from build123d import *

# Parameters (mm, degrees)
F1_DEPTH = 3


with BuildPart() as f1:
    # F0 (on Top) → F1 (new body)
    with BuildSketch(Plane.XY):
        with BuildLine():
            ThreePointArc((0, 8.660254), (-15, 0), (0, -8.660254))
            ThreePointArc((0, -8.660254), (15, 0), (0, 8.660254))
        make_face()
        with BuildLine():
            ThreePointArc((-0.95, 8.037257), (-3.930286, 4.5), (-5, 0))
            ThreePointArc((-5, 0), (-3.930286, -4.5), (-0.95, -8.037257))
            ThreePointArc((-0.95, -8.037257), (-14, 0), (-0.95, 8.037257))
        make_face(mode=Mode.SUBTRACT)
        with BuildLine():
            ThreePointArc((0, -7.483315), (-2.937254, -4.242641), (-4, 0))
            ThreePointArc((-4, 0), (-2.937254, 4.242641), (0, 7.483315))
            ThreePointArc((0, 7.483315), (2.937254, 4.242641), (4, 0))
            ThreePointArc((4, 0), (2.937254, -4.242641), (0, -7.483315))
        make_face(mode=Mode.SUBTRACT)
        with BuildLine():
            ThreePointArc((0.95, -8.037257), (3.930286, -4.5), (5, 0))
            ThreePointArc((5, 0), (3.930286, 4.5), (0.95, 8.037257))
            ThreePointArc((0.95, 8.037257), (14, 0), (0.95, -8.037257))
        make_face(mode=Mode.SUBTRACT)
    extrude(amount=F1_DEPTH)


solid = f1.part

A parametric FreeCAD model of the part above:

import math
import FreeCAD as App
import Part
import Sketcher

doc = App.newDocument("Part")
body = doc.addObject("PartDesign::Body", "Body")

# Sketch on XY plane
sketch1 = body.newObject("Sketcher::SketchObject", "Sketch")
sketch1.AttachmentSupport = (doc.getObject("XY_Plane"), [""])
sketch1.MapMode = "FlatFace"
sketch1.addGeometry([
    Part.ArcOfCircle(Part.Circle(App.Vector(-5, 0, 0), App.Vector(0, 0, 1), 10), math.radians(60), math.radians(300)),  # 0
    Part.ArcOfCircle(Part.Circle(App.Vector(5, 0, 0), App.Vector(0, 0, 1), 10), math.radians(-120), math.radians(120)),  # 1
    Part.ArcOfCircle(Part.Circle(App.Vector(-5, 0, 0), App.Vector(0, 0, 1), 9), math.radians(63.256316), math.radians(296.743684)),  # 2
    Part.ArcOfCircle(Part.Circle(App.Vector(4.999997, 0.000002, 0), App.Vector(0, 0, 1), 9.999997), math.radians(126.512622), math.radians(180.00001)),  # 3
    Part.ArcOfCircle(Part.Circle(App.Vector(4.999997, -0.000002, 0), App.Vector(0, 0, 1), 9.999997), math.radians(179.99999), math.radians(233.487378)),  # 4
    Part.ArcOfCircle(Part.Circle(App.Vector(-4.999999, -0.000001, 0), App.Vector(0, 0, 1), 8.999999), math.radians(-56.251014), math.radians(0.000004)),  # 5
    Part.ArcOfCircle(Part.Circle(App.Vector(4.999999, -0.000001, 0), App.Vector(0, 0, 1), 8.999999), math.radians(179.999996), math.radians(236.251014)),  # 6
    Part.ArcOfCircle(Part.Circle(App.Vector(4.999999, 0.000001, 0), App.Vector(0, 0, 1), 8.999999), math.radians(123.748986), math.radians(180.000004)),  # 7
    Part.ArcOfCircle(Part.Circle(App.Vector(-4.999999, 0.000001, 0), App.Vector(0, 0, 1), 8.999999), math.radians(-0.000004), math.radians(56.251014)),  # 8
    Part.ArcOfCircle(Part.Circle(App.Vector(5, 0, 0), App.Vector(0, 0, 1), 9), math.radians(-116.743684), math.radians(116.743684)),  # 9
    Part.ArcOfCircle(Part.Circle(App.Vector(-4.999997, -0.000002, 0), App.Vector(0, 0, 1), 9.999997), math.radians(-53.487378), math.radians(0.00001)),  # 10
    Part.ArcOfCircle(Part.Circle(App.Vector(-4.999997, 0.000002, 0), App.Vector(0, 0, 1), 9.999997), math.radians(-0.00001), math.radians(53.487378)),  # 11
], False)
sketch1.addConstraint([
    Sketcher.Constraint("Coincident", 0, 1, 1, 2),
    Sketcher.Constraint("Coincident", 1, 1, 0, 2),
    Sketcher.Constraint("Coincident", 2, 1, 3, 1),
    Sketcher.Constraint("Tangent", 3, 2, 4, 1),
    Sketcher.Constraint("Coincident", 4, 2, 2, 2),
    Sketcher.Constraint("Coincident", 5, 1, 6, 2),
    Sketcher.Constraint("Tangent", 6, 1, 7, 2),
    Sketcher.Constraint("Coincident", 7, 1, 8, 2),
    Sketcher.Constraint("Tangent", 8, 1, 5, 2),
    Sketcher.Constraint("Coincident", 9, 1, 10, 1),
    Sketcher.Constraint("Tangent", 10, 2, 11, 1),
    Sketcher.Constraint("Coincident", 11, 2, 9, 2),
    Sketcher.Constraint("Coincident", 2, 3, 0, 3),
    Sketcher.Constraint("Coincident", 3, 3, 1, 3),
    Sketcher.Constraint("Coincident", 5, 3, 0, 3),
    Sketcher.Constraint("Coincident", 6, 3, 1, 3),
    Sketcher.Constraint("Coincident", 9, 3, 1, 3),
    Sketcher.Constraint("Coincident", 10, 3, 0, 3),
    Sketcher.Constraint("Coincident", 3, 2, 0, 3),
    Sketcher.Constraint("Coincident", 10, 2, 1, 3),
    Sketcher.Constraint("Equal", 0, 1),
    Sketcher.Constraint("Equal", 3, 4),
    Sketcher.Constraint("Equal", 2, 5),
    Sketcher.Constraint("Equal", 5, 6),
    Sketcher.Constraint("Equal", 6, 7),
    Sketcher.Constraint("Equal", 7, 8),
    Sketcher.Constraint("Equal", 8, 9),
    Sketcher.Constraint("Equal", 10, 11),
    Sketcher.Constraint("Symmetric", 0, 3, 1, 3, -1, 1),
    Sketcher.Constraint("PointOnObject", 0, 3, -1),
    Sketcher.Constraint("PointOnObject", 6, 1, -1),
    Sketcher.Constraint("PointOnObject", 8, 1, -1),
    Sketcher.Constraint("Radius", 0, 10.0),
    Sketcher.Constraint("Radius", 2, 9.0),
    Sketcher.Constraint("DistanceX", 0, 3, -1, 1, 5.0),
])
pad1 = body.newObject("PartDesign::Pad", "Pad")
pad1.Profile = sketch1
pad1.Length = 3

doc.recompute()
